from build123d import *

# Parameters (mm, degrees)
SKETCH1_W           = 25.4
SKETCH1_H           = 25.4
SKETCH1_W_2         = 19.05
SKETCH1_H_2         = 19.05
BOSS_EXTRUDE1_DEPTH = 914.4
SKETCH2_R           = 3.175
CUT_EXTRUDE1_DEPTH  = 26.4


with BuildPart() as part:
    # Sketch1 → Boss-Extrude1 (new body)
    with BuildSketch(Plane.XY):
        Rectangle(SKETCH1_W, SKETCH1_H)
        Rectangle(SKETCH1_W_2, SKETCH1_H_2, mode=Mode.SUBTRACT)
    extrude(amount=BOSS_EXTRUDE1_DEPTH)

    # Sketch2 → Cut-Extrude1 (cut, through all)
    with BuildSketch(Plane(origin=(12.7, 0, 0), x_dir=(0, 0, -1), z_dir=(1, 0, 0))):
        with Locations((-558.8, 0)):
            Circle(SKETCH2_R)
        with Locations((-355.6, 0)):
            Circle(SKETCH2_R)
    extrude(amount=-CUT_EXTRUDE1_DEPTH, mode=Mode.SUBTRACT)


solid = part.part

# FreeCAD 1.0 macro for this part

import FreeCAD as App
import Part
import Sketcher
Q = App.Units.Quantity


def add_polygon(sketch, points):
    """Adds a closed chain of lines whose ends are joined by coincident constraints."""
    first, n = sketch.GeometryCount, len(points)
    for a, b in zip(points, points[1:] + points[:1]):
        sketch.addGeometry(Part.LineSegment(App.Vector(*a, 0), App.Vector(*b, 0)), False)
    for i in range(n):
        sketch.addConstraint(Sketcher.Constraint("Coincident", first + i, 2, first + (i + 1) % n, 1))

doc = App.newDocument("Part")
body = doc.addObject("PartDesign::Body", "Body")

sketch1 = body.newObject("Sketcher::SketchObject", "Sketch")
sketch1.AttachmentSupport = (doc.getObject("XY_Plane"), [""])
sketch1.MapMode = "FlatFace"
add_polygon(sketch1, [(-13, 13), (-13, -13), (13, -13), (13, 13)])
add_polygon(sketch1, [(10, -10), (-10, -10), (-10, 10), (10, 10)])
sketch1.addConstraint([
    Sketcher.Constraint("Vertical", 0),
    Sketcher.Constraint("Horizontal", 1),
    Sketcher.Constraint("Vertical", 2),
    Sketcher.Constraint("Horizontal", 3),
    Sketcher.Constraint("Horizontal", 4),
    Sketcher.Constraint("Vertical", 5),
    Sketcher.Constraint("Horizontal", 6),
    Sketcher.Constraint("Vertical", 7),
    Sketcher.Constraint("Symmetric", 0, 2, 2, 2, -1, 1),
    Sketcher.Constraint("Symmetric", 4, 2, 6, 2, -1, 1),
    Sketcher.Constraint("Equal", 3, 0),
    Sketcher.Constraint("Equal", 6, 5),
    Sketcher.Constraint("DistanceX", 1, 1, 1, 2, Q("1 in")),
    Sketcher.Constraint("DistanceX", 4, 2, 4, 1, Q("0.75 in")),
])
pad1 = body.newObject("PartDesign::Pad", "Pad")
pad1.Profile = sketch1
pad1.Length = Q("36 in")

sketch2 = body.newObject("Sketcher::SketchObject", "Sketch001")
sketch2.AttachmentSupport = (doc.getObject("YZ_Plane"), [""])
sketch2.MapMode = "FlatFace"
sketch2.AttachmentOffset = App.Placement(App.Vector(0, 0, 0.5 * 25.4), App.Rotation())
sketch2.addGeometry([
    Part.Circle(App.Vector(0, 558.8, 0), App.Vector(0, 0, 1), 3.2),
    Part.Circle(App.Vector(0, 355.6, 0), App.Vector(0, 0, 1), 3.2),
], False)
sketch2.addConstraint([
    Sketcher.Constraint("Equal", 0, 1),
    Sketcher.Constraint("PointOnObject", 0, 3, -2),
    Sketcher.Constraint("PointOnObject", 1, 3, -2),
    Sketcher.Constraint("Diameter", 0, Q("0.25 in")),
    Sketcher.Constraint("DistanceY", -1, 1, 0, 3, Q("22 in")),
    Sketcher.Constraint("DistanceY", -1, 1, 1, 3, Q("14 in")),
])
pocket1 = body.newObject("PartDesign::Pocket", "Pocket")
pocket1.Profile = sketch2
pocket1.Type = "ThroughAll"

doc.recompute()
